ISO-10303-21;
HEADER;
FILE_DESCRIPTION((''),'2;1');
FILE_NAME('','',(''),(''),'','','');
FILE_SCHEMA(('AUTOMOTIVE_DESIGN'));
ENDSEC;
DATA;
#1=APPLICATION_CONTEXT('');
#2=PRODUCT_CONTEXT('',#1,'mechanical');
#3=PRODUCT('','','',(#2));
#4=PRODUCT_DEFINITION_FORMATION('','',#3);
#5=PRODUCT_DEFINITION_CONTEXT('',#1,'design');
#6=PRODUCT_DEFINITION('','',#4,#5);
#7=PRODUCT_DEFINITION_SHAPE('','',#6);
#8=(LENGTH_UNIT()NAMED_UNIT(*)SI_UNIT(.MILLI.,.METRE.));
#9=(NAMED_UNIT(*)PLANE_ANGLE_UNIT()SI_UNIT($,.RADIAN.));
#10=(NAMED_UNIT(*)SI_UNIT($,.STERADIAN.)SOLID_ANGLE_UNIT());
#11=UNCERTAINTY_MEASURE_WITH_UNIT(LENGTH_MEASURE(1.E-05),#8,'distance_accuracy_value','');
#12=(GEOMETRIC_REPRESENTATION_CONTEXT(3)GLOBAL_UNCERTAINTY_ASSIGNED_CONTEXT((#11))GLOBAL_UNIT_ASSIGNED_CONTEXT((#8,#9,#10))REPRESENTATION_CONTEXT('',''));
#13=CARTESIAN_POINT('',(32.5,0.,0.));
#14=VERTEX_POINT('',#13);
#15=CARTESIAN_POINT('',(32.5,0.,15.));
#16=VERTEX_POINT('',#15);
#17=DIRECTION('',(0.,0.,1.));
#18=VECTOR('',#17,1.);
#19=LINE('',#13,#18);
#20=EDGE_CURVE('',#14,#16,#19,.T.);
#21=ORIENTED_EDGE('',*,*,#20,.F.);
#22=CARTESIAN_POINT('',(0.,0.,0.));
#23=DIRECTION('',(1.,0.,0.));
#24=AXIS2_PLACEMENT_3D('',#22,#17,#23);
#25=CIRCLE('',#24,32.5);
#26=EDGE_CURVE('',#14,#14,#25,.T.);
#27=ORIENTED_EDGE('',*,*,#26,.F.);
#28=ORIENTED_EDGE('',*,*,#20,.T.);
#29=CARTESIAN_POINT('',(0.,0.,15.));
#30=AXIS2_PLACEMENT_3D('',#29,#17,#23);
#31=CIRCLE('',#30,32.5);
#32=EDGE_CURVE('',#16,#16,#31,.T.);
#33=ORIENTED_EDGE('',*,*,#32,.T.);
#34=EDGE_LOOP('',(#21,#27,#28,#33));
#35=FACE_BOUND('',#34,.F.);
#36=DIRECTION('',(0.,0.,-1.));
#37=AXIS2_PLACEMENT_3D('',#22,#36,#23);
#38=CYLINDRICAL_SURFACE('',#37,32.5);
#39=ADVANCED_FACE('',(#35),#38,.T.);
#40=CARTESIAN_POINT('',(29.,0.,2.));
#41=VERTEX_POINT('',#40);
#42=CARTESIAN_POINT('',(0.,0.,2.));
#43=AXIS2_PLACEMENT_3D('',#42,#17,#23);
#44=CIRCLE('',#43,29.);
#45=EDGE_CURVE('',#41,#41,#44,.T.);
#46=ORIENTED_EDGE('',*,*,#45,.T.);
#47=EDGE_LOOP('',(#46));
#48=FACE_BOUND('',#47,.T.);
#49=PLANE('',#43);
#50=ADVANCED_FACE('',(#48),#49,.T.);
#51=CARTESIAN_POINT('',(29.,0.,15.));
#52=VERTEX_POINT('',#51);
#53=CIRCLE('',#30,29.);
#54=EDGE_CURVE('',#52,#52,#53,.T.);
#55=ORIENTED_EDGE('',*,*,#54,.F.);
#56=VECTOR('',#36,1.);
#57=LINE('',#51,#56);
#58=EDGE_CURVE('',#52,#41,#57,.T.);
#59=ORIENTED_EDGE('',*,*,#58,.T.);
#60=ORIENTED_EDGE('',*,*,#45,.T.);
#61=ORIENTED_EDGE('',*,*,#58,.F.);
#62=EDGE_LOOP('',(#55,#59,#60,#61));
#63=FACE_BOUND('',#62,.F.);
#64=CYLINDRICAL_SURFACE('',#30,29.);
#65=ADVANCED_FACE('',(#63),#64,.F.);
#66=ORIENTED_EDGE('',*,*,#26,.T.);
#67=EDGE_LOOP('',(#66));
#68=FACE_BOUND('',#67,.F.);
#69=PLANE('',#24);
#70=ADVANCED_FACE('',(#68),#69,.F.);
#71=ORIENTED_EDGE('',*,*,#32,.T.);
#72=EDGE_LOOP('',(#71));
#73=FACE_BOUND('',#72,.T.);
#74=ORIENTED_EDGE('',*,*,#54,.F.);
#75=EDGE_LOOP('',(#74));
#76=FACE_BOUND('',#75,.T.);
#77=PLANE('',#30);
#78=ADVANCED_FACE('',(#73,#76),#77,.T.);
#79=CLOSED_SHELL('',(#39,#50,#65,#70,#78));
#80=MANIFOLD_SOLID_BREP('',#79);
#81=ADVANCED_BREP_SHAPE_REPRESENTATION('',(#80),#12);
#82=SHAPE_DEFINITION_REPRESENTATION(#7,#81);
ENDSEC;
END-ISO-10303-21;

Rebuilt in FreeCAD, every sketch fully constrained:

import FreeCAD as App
import Part
import Sketcher

V = App.Vector
Q = App.Units.Quantity

doc = App.newDocument("Part")
body = doc.addObject("PartDesign::Body", "Body")

sketch1 = body.newObject("Sketcher::SketchObject", "Sketch")
sketch1.AttachmentSupport = (doc.getObject("XY_Plane"), [""])
sketch1.MapMode = "FlatFace"
sketch1.addGeometry(Part.Circle(V(0, 0, 0), V(0, 0, 1), 32), False)
sketch1.addConstraint([
    Sketcher.Constraint("Coincident", 0, 3, -1, 1),
    Sketcher.Constraint("Diameter", 0, Q("65 mm")),
])
pad1 = body.newObject("PartDesign::Pad", "Pad")
pad1.Profile = sketch1
pad1.Length = 15

sketch2 = body.newObject("Sketcher::SketchObject", "Sketch001")
sketch2.AttachmentSupport = (doc.getObject("XY_Plane"), [""])
sketch2.MapMode = "FlatFace"
sketch2.AttachmentOffset = App.Placement(V(0, 0, 15), App.Rotation())
sketch2.addGeometry(Part.Circle(V(0, 0, 0), V(0, 0, 1), 29), False)
sketch2.addConstraint([
    Sketcher.Constraint("Coincident", 0, 3, -1, 1),
    Sketcher.Constraint("Diameter", 0, Q("58 mm")),
])
pocket1 = body.newObject("PartDesign::Pocket", "Pocket")
pocket1.Profile = sketch2
pocket1.Length = 13

doc.recompute()
